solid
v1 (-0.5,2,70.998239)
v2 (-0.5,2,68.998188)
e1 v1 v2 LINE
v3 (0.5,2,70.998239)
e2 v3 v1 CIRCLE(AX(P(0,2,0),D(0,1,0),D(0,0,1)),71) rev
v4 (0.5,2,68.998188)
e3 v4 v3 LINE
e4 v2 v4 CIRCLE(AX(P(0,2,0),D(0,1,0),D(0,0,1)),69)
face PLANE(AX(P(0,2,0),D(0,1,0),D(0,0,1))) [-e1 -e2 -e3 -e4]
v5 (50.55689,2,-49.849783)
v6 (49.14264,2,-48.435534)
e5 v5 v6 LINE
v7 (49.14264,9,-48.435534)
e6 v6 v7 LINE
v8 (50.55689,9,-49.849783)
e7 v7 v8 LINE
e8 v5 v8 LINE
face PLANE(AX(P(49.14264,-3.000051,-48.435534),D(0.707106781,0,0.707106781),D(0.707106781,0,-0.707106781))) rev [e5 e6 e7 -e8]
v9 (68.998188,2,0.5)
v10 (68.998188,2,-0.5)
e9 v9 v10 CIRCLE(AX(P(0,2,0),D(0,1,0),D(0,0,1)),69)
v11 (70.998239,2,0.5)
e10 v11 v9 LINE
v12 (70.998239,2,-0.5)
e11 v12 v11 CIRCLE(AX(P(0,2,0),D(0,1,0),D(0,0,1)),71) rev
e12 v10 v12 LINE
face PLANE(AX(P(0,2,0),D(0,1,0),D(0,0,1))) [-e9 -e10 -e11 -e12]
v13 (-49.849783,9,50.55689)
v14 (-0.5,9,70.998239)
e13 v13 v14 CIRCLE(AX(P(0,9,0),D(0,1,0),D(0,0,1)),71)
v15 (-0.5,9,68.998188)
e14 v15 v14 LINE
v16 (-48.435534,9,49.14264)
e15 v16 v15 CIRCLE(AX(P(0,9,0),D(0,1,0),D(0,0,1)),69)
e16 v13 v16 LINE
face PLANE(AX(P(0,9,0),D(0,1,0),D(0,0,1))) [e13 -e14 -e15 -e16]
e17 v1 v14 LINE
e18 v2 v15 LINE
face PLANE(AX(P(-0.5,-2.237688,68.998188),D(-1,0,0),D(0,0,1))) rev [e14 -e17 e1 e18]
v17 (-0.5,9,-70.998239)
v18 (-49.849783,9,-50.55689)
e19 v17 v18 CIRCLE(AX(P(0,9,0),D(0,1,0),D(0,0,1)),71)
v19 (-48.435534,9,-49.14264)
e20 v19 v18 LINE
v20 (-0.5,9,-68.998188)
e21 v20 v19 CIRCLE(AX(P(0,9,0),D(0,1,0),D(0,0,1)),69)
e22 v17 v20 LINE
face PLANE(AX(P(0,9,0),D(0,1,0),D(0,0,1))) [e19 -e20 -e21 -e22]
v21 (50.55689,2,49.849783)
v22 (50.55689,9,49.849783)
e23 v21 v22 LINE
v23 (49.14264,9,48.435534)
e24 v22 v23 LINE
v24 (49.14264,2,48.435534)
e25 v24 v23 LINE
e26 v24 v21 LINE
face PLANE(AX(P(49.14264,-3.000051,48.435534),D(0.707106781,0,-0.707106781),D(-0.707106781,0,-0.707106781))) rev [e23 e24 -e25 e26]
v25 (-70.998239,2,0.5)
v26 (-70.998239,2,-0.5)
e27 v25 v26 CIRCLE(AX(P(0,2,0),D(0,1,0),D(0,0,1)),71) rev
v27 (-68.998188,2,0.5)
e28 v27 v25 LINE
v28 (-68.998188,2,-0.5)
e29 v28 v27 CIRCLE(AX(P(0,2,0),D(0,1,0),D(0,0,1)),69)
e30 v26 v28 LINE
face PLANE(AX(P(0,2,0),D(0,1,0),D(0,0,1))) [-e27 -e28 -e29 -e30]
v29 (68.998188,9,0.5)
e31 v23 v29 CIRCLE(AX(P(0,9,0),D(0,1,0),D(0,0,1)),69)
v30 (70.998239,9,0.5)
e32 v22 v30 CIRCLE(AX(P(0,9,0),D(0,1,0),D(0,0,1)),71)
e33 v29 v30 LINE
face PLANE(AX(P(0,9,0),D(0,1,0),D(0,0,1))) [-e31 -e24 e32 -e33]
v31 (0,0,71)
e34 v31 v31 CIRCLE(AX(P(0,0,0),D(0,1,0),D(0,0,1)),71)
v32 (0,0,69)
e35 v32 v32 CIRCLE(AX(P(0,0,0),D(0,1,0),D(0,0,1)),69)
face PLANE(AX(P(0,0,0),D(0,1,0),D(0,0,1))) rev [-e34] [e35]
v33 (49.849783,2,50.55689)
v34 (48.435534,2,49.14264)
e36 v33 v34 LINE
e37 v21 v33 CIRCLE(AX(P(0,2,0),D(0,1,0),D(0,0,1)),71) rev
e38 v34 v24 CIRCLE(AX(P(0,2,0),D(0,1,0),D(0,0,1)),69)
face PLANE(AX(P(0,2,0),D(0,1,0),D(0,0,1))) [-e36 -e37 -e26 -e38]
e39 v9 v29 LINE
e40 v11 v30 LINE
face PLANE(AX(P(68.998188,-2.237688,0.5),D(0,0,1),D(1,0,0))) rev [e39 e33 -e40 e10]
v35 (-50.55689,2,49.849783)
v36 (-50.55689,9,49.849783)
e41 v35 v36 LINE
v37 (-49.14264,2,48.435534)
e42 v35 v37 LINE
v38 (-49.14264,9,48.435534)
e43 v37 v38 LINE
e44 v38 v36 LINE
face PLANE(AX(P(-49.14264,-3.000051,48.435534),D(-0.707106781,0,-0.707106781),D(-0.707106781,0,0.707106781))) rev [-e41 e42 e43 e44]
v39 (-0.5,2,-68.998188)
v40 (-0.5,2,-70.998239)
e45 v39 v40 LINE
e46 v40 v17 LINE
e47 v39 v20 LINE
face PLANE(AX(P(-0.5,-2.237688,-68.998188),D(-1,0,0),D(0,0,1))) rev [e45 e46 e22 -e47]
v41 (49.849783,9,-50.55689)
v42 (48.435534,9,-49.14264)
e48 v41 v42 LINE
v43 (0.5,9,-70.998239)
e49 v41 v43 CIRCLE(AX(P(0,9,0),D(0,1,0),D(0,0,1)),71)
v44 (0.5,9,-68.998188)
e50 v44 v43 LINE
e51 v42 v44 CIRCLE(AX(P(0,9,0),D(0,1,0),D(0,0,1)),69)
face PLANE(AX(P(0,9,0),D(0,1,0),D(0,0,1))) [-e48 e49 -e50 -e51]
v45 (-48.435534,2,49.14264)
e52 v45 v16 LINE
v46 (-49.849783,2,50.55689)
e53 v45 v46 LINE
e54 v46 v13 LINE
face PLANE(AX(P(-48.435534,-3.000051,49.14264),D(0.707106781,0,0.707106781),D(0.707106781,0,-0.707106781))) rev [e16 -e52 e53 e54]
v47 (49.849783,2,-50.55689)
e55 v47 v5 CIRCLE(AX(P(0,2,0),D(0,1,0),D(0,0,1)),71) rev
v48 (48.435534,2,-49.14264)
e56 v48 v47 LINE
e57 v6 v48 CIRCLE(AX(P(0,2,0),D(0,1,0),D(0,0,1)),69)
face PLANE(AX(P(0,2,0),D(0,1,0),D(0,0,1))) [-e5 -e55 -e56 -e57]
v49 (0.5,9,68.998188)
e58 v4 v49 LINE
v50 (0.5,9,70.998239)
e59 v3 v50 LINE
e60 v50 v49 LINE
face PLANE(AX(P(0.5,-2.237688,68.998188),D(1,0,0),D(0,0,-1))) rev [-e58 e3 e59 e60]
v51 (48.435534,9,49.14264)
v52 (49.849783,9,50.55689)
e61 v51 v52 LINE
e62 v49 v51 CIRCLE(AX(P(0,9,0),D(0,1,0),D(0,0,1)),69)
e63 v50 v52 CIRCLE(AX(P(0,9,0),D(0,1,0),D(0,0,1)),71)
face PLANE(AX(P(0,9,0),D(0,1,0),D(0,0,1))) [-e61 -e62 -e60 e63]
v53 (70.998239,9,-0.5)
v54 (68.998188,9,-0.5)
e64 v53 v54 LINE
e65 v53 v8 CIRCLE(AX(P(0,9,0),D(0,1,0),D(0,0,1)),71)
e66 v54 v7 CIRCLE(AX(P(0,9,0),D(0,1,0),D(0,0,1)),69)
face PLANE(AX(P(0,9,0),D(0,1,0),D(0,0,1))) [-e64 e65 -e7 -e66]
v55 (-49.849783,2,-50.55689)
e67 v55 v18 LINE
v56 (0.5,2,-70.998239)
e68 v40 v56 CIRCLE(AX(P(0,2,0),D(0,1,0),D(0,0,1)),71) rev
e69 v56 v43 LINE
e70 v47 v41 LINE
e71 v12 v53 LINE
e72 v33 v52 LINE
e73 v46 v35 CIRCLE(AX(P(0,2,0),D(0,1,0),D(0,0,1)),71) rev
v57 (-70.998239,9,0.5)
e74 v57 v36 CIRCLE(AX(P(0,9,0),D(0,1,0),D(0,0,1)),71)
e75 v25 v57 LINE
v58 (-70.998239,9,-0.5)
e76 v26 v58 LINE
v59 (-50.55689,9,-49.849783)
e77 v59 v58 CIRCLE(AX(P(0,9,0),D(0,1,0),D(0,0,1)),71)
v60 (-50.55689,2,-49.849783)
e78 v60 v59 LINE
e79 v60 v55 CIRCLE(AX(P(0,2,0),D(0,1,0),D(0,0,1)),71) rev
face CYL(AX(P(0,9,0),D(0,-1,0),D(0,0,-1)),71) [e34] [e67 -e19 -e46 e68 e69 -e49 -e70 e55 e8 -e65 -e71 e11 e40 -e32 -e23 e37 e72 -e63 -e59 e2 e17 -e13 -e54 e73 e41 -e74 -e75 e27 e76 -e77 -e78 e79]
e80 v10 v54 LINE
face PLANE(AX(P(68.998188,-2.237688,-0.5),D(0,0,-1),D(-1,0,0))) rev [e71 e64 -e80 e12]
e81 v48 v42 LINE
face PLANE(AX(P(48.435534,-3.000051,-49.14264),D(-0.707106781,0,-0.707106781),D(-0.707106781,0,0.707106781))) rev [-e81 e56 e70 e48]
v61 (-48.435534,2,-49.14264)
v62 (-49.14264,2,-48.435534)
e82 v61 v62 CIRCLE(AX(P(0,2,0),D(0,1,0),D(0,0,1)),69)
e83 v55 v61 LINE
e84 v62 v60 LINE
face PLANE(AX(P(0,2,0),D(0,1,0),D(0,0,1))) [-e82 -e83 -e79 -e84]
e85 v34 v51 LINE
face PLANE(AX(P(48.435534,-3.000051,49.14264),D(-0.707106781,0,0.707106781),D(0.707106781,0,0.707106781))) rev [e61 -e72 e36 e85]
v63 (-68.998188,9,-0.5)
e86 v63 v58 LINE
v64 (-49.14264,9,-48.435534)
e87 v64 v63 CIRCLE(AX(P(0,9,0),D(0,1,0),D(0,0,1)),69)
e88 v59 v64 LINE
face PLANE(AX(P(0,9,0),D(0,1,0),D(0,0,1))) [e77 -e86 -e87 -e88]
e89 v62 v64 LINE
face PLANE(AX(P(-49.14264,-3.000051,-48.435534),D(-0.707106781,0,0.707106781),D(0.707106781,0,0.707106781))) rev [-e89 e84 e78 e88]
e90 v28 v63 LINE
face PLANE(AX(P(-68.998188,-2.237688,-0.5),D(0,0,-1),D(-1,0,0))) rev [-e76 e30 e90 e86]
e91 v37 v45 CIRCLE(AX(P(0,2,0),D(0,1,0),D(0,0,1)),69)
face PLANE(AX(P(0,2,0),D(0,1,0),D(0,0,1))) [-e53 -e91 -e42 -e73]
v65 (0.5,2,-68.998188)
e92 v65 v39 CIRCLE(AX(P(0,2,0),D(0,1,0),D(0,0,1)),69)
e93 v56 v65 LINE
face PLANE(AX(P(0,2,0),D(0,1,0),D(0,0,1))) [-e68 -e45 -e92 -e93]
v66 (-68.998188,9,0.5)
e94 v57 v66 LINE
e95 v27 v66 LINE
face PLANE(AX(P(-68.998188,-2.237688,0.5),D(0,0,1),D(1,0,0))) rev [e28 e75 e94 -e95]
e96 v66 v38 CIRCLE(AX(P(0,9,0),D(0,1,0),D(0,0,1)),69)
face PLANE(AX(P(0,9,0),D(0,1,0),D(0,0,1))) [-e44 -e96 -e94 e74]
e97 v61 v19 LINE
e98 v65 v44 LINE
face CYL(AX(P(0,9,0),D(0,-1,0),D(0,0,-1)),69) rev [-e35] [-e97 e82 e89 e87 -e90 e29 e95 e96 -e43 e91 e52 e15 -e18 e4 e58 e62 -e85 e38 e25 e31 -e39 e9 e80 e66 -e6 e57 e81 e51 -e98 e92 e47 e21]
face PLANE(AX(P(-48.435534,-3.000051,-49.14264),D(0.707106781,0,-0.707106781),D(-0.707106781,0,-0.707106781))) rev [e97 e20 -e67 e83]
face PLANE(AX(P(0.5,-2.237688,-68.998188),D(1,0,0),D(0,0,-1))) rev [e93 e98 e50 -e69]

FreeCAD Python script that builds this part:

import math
import FreeCAD as App
import Part
import Sketcher

V = App.Vector
Q = App.Units.Quantity

doc = App.newDocument("Part")
body = doc.addObject("PartDesign::Body", "Body")

# Sketch on XZ plane
sketch1 = doc.addObject("Sketcher::SketchObject", "Sketch")
body.addObject(sketch1)
sketch1.AttachmentSupport = (doc.XZ_Plane, [""])
sketch1.MapMode = "FlatFace"
sketch1.addGeometry([
    Part.Circle(V(0, 0, 0), V(0, 0, 1), 71),
    Part.Circle(V(0, 0, 0), V(0, 0, 1), 69),
], False)
sketch1.addConstraint([
    Sketcher.Constraint("Coincident", 0, 3, -1, 1),
    Sketcher.Constraint("Coincident", 1, 3, -1, 1),
    Sketcher.Constraint("Diameter", 0, Q("142 mm")),
    Sketcher.Constraint("Diameter", 1, Q("138 mm")),
])
pad1 = doc.addObject("PartDesign::Pad", "Pad")
body.addObject(pad1)
pad1.Profile = sketch1
pad1.Length = 9
pad1.Reversed = True

# Sketch on XZ plane
sketch2 = doc.addObject("Sketcher::SketchObject", "Sketch001")
body.addObject(sketch2)
sketch2.AttachmentSupport = (doc.XZ_Plane, [""])
sketch2.MapMode = "FlatFace"
sketch2.AttachmentOffset = App.Placement(V(0, 0, -9), App.Rotation())
sketch2.addGeometry([
    Part.LineSegment(V(0.5, -68.998188, 0), V(0.5, -70.998239, 0)),
    Part.ArcOfCircle(Part.Circle(V(0, 0.000008, 0), V(0, 0, 1), 71.000008), math.radians(-90.403495), math.radians(-89.596505)),
    Part.LineSegment(V(-0.5, -70.998239, 0), V(-0.5, -68.998188, 0)),
    Part.ArcOfCircle(Part.Circle(V(0, -0.000001, 0), V(0, 0, 1), 68.999999), math.radians(-90.41519), math.radians(-89.58481)),
], False)
sketch2.addConstraint([
    Sketcher.Constraint("Coincident", 0, 2, 1, 2),
    Sketcher.Constraint("Coincident", 1, 1, 2, 1),
    Sketcher.Constraint("Coincident", 2, 2, 3, 1),
    Sketcher.Constraint("Coincident", 3, 2, 0, 1),
    Sketcher.Constraint("Vertical", 0),
    Sketcher.Constraint("Vertical", 2),
    Sketcher.Constraint("Coincident", 1, 3, -1, 1),
    Sketcher.Constraint("Coincident", 3, 3, -1, 1),
    Sketcher.Constraint("Horizontal", 0, 2, 1, 1),
    Sketcher.Constraint("Radius", 3, Q("68.999999 mm")),
    Sketcher.Constraint("DistanceX", 1, 1, 0, 2, Q("1 mm")),
    Sketcher.Constraint("Radius", 1, Q("71.000008 mm")),
])
pocket1 = doc.addObject("PartDesign::Pocket", "Pocket")
body.addObject(pocket1)
pocket1.Profile = sketch2
pocket1.Length = 7
pocket1.Reversed = True
doc.recompute()

polarpattern = doc.addObject("PartDesign::PolarPattern", "PolarPattern")
body.addObject(polarpattern)
polarpattern.Originals = [pocket1]
polarpattern.Axis = (doc.Y_Axis, [""])
polarpattern.Angle = 360
polarpattern.Occurrences = 8
body.Tip = polarpattern

doc.recompute()
